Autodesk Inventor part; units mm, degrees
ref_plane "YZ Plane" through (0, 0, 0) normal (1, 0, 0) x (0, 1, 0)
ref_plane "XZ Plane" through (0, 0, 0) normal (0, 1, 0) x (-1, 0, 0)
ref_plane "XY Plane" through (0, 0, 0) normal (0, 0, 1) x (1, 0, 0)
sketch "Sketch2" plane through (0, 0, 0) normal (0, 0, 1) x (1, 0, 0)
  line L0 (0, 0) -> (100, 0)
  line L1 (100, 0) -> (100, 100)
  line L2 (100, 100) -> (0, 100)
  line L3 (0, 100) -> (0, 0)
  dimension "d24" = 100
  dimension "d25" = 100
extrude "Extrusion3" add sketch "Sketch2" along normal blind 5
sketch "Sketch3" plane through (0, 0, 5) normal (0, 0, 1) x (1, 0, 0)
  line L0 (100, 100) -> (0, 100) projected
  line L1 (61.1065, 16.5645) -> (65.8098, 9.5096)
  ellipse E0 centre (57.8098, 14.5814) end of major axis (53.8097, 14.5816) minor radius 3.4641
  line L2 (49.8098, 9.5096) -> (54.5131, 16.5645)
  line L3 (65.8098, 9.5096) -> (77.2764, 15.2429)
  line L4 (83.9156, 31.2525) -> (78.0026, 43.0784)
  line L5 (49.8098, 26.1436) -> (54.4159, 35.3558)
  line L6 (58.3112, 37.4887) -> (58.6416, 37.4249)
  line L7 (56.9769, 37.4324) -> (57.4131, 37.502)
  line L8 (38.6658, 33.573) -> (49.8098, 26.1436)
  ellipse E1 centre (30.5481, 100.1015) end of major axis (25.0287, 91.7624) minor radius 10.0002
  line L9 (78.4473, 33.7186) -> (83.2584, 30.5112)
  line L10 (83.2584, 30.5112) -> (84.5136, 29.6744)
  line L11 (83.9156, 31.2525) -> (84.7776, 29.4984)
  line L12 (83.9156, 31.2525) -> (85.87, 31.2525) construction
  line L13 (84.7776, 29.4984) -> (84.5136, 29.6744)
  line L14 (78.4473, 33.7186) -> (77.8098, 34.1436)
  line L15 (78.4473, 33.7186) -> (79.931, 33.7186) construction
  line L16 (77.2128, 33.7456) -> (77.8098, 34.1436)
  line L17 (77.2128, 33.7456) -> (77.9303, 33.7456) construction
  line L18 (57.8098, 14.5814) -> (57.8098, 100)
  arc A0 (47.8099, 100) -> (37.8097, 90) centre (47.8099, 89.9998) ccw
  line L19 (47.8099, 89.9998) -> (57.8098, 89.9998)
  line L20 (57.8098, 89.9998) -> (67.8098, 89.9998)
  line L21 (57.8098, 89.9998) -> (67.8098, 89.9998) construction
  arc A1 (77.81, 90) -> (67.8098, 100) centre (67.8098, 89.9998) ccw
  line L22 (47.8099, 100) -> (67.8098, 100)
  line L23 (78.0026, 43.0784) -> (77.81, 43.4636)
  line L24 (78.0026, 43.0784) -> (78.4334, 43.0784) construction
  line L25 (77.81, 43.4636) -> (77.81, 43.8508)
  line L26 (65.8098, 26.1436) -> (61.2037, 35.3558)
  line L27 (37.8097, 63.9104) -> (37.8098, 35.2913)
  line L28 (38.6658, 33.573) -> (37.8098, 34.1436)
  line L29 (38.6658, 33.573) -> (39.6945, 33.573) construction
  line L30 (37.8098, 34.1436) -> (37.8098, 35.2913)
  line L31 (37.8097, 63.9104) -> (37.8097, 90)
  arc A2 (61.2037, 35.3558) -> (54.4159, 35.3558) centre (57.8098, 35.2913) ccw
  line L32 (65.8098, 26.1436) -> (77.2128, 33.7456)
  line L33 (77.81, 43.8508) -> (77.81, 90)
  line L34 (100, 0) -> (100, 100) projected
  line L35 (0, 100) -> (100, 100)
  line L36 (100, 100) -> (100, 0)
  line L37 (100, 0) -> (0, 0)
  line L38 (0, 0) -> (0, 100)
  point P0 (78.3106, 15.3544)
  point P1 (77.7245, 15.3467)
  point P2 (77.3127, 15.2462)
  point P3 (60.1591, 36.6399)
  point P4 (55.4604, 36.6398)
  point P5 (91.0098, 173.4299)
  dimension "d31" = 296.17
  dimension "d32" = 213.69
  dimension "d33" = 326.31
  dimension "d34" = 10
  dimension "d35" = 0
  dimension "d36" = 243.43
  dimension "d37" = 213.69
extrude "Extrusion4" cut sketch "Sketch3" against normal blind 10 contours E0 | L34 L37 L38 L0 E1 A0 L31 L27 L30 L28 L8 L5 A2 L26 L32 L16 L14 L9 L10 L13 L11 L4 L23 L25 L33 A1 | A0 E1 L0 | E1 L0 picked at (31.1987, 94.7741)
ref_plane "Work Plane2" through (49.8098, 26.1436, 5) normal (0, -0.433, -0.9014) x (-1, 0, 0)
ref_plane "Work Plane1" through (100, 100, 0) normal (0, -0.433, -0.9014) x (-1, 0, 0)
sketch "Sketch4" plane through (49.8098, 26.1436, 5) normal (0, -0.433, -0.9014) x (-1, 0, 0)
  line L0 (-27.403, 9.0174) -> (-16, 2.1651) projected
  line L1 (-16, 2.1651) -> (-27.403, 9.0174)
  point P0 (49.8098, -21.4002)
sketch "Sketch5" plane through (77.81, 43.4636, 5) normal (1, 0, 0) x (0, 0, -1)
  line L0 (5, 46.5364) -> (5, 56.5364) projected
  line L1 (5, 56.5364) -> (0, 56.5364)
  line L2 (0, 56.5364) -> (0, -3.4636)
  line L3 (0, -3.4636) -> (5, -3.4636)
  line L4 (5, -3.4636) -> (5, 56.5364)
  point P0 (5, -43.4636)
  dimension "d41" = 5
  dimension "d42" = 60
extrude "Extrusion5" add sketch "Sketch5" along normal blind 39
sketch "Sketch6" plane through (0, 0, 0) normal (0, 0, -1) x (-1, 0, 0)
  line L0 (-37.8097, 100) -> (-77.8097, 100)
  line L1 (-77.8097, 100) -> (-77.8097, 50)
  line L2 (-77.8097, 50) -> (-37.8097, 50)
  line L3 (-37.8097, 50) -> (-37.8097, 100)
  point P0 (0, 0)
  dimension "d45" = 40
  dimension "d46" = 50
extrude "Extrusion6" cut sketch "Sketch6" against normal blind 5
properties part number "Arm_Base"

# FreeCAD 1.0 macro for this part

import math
import FreeCAD as App
import Part
import Sketcher

V = App.Vector

doc = App.newDocument("Part")
body = doc.addObject("PartDesign::Body", "Body")

sketch1 = body.newObject("Sketcher::SketchObject", "Sketch")
sketch1.AttachmentSupport = (doc.getObject("XY_Plane"), [""])
sketch1.MapMode = "FlatFace"
sketch1.addGeometry([
    Part.LineSegment(V(0, 100, 0), V(0, 0, 0)),
    Part.LineSegment(V(0, 0, 0), V(100, 0, 0)),
    Part.LineSegment(V(100, 0, 0), V(100, 100, 0)),
    Part.LineSegment(V(100, 100, 0), V(0, 100, 0)),
], False)
sketch1.addConstraint([
    Sketcher.Constraint("Coincident", 0, 2, 1, 1),
    Sketcher.Constraint("Coincident", 1, 2, 2, 1),
    Sketcher.Constraint("Coincident", 2, 2, 3, 1),
    Sketcher.Constraint("Coincident", 3, 2, 0, 1),
    Sketcher.Constraint("Vertical", 0),
    Sketcher.Constraint("Horizontal", 1),
    Sketcher.Constraint("Vertical", 2),
    Sketcher.Constraint("Horizontal", 3),
    Sketcher.Constraint("Coincident", 0, 2, -1, 1),
    Sketcher.Constraint("Equal", 3, 0),
    Sketcher.Constraint("DistanceX", 1, 1, 1, 2, 100.0),
])
pad1 = body.newObject("PartDesign::Pad", "Pad")
pad1.Profile = sketch1
pad1.Length = 5

sketch2 = body.newObject("Sketcher::SketchObject", "Sketch001")
sketch2.AttachmentSupport = (doc.getObject("XY_Plane"), [""])
sketch2.MapMode = "FlatFace"
sketch2.AttachmentOffset = App.Placement(V(0, 0, 5), App.Rotation())
sketch2.addGeometry([
    Part.LineSegment(V(100, 0, 0), V(100, 100, 0)),
    Part.LineSegment(V(100, 100, 0), V(67.8098, 100, 0)),
    Part.ArcOfCircle(Part.Circle(V(67.8098, 89.9998, 0), V(0, 0, 1), 10.0002), math.radians(0.001146), math.radians(90)),
    Part.LineSegment(V(77.81, 90, 0), V(77.81, 43.4636, 0)),
    Part.LineSegment(V(77.81, 43.4636, 0), V(78.0026, 43.0784, 0)),
    Part.LineSegment(V(78.0026, 43.0784, 0), V(83.9156, 31.2525, 0)),
    Part.LineSegment(V(83.9156, 31.2525, 0), V(84.7776, 29.4984, 0)),
    Part.LineSegment(V(84.7776, 29.4984, 0), V(77.8098, 34.1436, 0)),
    Part.LineSegment(V(77.8098, 34.1436, 0), V(65.8098, 26.1436, 0)),
    Part.LineSegment(V(65.8098, 26.1436, 0), V(61.2037, 35.3558, 0)),
    Part.ArcOfCircle(Part.Circle(V(57.8098, 35.2913, 0), V(0, 0, 1), 3.394513), math.radians(1.088757), math.radians(90)),
    Part.ArcOfCircle(Part.Circle(V(57.8098, 35.2913, 0), V(0, 0, 1), 3.394513), math.radians(90), math.radians(178.911243)),
    Part.LineSegment(V(54.4159, 35.3558, 0), V(49.8098, 26.1436, 0)),
    Part.LineSegment(V(49.8098, 26.1436, 0), V(38.6658, 33.573, 0)),
    Part.LineSegment(V(38.6658, 33.573, 0), V(37.8098, 34.1436, 0)),
    Part.LineSegment(V(37.8098, 34.1436, 0), V(37.8098, 35.2913, 0)),
    Part.LineSegment(V(37.8098, 35.2913, 0), V(37.8097, 63.9104, 0)),
    Part.LineSegment(V(37.8097, 63.9104, 0), V(37.8097, 90, 0)),
    Part.ArcOfCircle(Part.Circle(V(47.8099, 89.9998, 0), V(0, 0, 1), 10.0002), math.radians(90), math.radians(179.998854)),
    Part.LineSegment(V(47.8099, 100, 0), V(0, 100, 0)),
    Part.LineSegment(V(0, 100, 0), V(0, 0, 0)),
    Part.LineSegment(V(0, 0, 0), V(100, 0, 0)),
], False)
sketch2.addConstraint([
    Sketcher.Constraint("Coincident", 0, 2, 1, 1),
    Sketcher.Constraint("Coincident", 1, 2, 2, 2),
    Sketcher.Constraint("Coincident", 2, 1, 3, 1),
    Sketcher.Constraint("Coincident", 3, 2, 4, 1),
    Sketcher.Constraint("Coincident", 4, 2, 5, 1),
    Sketcher.Constraint("Coincident", 5, 2, 6, 1),
    Sketcher.Constraint("Coincident", 6, 2, 7, 1),
    Sketcher.Constraint("Coincident", 7, 2, 8, 1),
    Sketcher.Constraint("Coincident", 8, 2, 9, 1),
    Sketcher.Constraint("Coincident", 9, 2, 10, 1),
    Sketcher.Constraint("Coincident", 10, 2, 11, 1),
    Sketcher.Constraint("Coincident", 11, 2, 12, 1),
    Sketcher.Constraint("Coincident", 12, 2, 13, 1),
    Sketcher.Constraint("Coincident", 13, 2, 14, 1),
    Sketcher.Constraint("Coincident", 14, 2, 15, 1),
    Sketcher.Constraint("Coincident", 15, 2, 16, 1),
    Sketcher.Constraint("Coincident", 16, 2, 17, 1),
    Sketcher.Constraint("Coincident", 17, 2, 18, 2),
    Sketcher.Constraint("Coincident", 18, 1, 19, 1),
    Sketcher.Constraint("Coincident", 19, 2, 20, 1),
    Sketcher.Constraint("Coincident", 20, 2, 21, 1),
    Sketcher.Constraint("Coincident", 21, 2, 0, 1),
    Sketcher.Constraint("Vertical", 0),
    Sketcher.Constraint("Horizontal", 1),
    Sketcher.Constraint("Vertical", 3),
    Sketcher.Constraint("Vertical", 15),
    Sketcher.Constraint("Vertical", 16),
    Sketcher.Constraint("Vertical", 17),
    Sketcher.Constraint("Horizontal", 19),
    Sketcher.Constraint("Vertical", 20),
    Sketcher.Constraint("Horizontal", 21),
    Sketcher.Constraint("Coincident", 20, 2, -1, 1),
    Sketcher.Constraint("Coincident", 11, 3, 10, 3),
    Sketcher.Constraint("DistanceX", 10, 3, 2, 3, 10.0),
    Sketcher.Constraint("DistanceX", 18, 3, 10, 3, 10.0),
    Sketcher.Constraint("DistanceX", 10, 3, 1, 2, 10.0),
    Sketcher.Constraint("DistanceY", 2, 1, 1, 2, 10.0),
    Sketcher.Constraint("DistanceY", 17, 2, 1, 2, 10.0),
    Sketcher.Constraint("DistanceY", 17, 2, 18, 1, 10.0),
    Sketcher.Constraint("Radius", 2, 10.0002),
    Sketcher.Constraint("Radius", 18, 10.0002),
    Sketcher.Constraint("DistanceX", 21, 1, 21, 2, 100.0),
    Sketcher.Constraint("DistanceY", 0, 1, 0, 2, 100.0),
    Sketcher.Constraint("DistanceX", 10, 3, 7, 2, 20.0),
    Sketcher.Constraint("DistanceX", 10, 3, 8, 2, 8.0),
    Sketcher.Constraint("DistanceY", 8, 2, 7, 2, 8.0),
    Sketcher.Constraint("DistanceX", 10, 2, 8, 2, 8.0),
    Sketcher.Constraint("DistanceX", 12, 2, 10, 3, 8.0),
    Sketcher.Constraint("DistanceY", 12, 2, 14, 2, 8.0),
    Sketcher.Constraint("DistanceX", 18, 1, 1, 2, 20.0),
    Sketcher.Constraint("DistanceX", 19, 2, 19, 1, 47.81),
    Sketcher.Constraint("Radius", 10, 3.3945),
    Sketcher.Constraint("DistanceY", 16, 1, 16, 2, 28.619),
    Sketcher.Constraint("DistanceY", 6, 2, 4, 2, 13.58),
    Sketcher.Constraint("DistanceY", 7, 2, 3, 2, 9.32),
    Sketcher.Constraint("DistanceY", 9, 2, 10, 2, 3.33),
    Sketcher.Constraint("DistanceY", 11, 2, 10, 2, 3.33),
    Sketcher.Constraint("DistanceX", 13, 2, 11, 2, 15.75),
    Sketcher.Constraint("DistanceY", 3, 2, 3, 1, 46.5364),
    Sketcher.Constraint("DistanceY", 15, 1, 15, 2, 1.1477),
    Sketcher.Constraint("DistanceY", 17, 1, 17, 2, 26.0896),
    Sketcher.Constraint("DistanceY", -1, 1, 13, 2, 33.573),
    Sketcher.Constraint("DistanceY", 10, 3, 4, 2, 7.787),
    Sketcher.Constraint("DistanceX", 4, 2, 5, 2, 5.913),
    Sketcher.Constraint("DistanceY", 5, 2, 4, 2, 11.826),
    Sketcher.Constraint("DistanceY", 5, 2, 3, 2, 12.211),
    Sketcher.Constraint("DistanceX", 5, 2, 6, 2, 0.862),
    Sketcher.Constraint("Distance", 4, 0.4307),
])
pocket1 = body.newObject("PartDesign::Pocket", "Pocket")
pocket1.Profile = sketch2
pocket1.Length = 10

sketch3 = body.newObject("Sketcher::SketchObject", "Sketch002")
sketch3.AttachmentSupport = (doc.getObject("YZ_Plane"), [""])
sketch3.MapMode = "FlatFace"
sketch3.AttachmentOffset = App.Placement(V(0, 0, 77.81), App.Rotation())
sketch3.addGeometry([
    Part.LineSegment(V(40, 0, 0), V(100, 0, 0)),
    Part.LineSegment(V(100, 0, 0), V(100, 5, 0)),
    Part.LineSegment(V(100, 5, 0), V(40, 5, 0)),
    Part.LineSegment(V(40, 5, 0), V(40, 0, 0)),
], False)
sketch3.addConstraint([
    Sketcher.Constraint("Coincident", 0, 2, 1, 1),
    Sketcher.Constraint("Coincident", 1, 2, 2, 1),
    Sketcher.Constraint("Coincident", 2, 2, 3, 1),
    Sketcher.Constraint("Coincident", 3, 2, 0, 1),
    Sketcher.Constraint("Horizontal", 0),
    Sketcher.Constraint("Vertical", 1),
    Sketcher.Constraint("Horizontal", 2),
    Sketcher.Constraint("Vertical", 3),
    Sketcher.Constraint("PointOnObject", 0, 2, -1),
    Sketcher.Constraint("DistanceX", 0, 1, 0, 2, 60.0),
    Sketcher.Constraint("DistanceY", 1, 1, 1, 2, 5.0),
    Sketcher.Constraint("DistanceX", -1, 1, 0, 2, 100.0),
])
pad2 = body.newObject("PartDesign::Pad", "Pad001")
pad2.Profile = sketch3
pad2.Length = 39

sketch4 = body.newObject("Sketcher::SketchObject", "Sketch003")
sketch4.AttachmentSupport = (doc.getObject("XY_Plane"), [""])
sketch4.MapMode = "FlatFace"
sketch4.addGeometry([
    Part.LineSegment(V(37.8097, 50, 0), V(37.8097, 100, 0)),
    Part.LineSegment(V(37.8097, 100, 0), V(77.8097, 100, 0)),
    Part.LineSegment(V(77.8097, 100, 0), V(77.8097, 50, 0)),
    Part.LineSegment(V(77.8097, 50, 0), V(37.8097, 50, 0)),
], False)
sketch4.addConstraint([
    Sketcher.Constraint("Coincident", 0, 2, 1, 1),
    Sketcher.Constraint("Coincident", 1, 2, 2, 1),
    Sketcher.Constraint("Coincident", 2, 2, 3, 1),
    Sketcher.Constraint("Coincident", 3, 2, 0, 1),
    Sketcher.Constraint("Vertical", 0),
    Sketcher.Constraint("Horizontal", 1),
    Sketcher.Constraint("Vertical", 2),
    Sketcher.Constraint("Horizontal", 3),
    Sketcher.Constraint("DistanceX", 1, 1, 1, 2, 40.0),
    Sketcher.Constraint("DistanceY", 0, 1, 0, 2, 50.0),
    Sketcher.Constraint("DistanceY", -1, 1, 2, 2, 50.0),
    Sketcher.Constraint("DistanceX", -1, 1, 0, 2, 37.8097),
])
pocket2 = body.newObject("PartDesign::Pocket", "Pocket001")
pocket2.Profile = sketch4
pocket2.Length = 5
pocket2.Reversed = True

doc.recompute()
